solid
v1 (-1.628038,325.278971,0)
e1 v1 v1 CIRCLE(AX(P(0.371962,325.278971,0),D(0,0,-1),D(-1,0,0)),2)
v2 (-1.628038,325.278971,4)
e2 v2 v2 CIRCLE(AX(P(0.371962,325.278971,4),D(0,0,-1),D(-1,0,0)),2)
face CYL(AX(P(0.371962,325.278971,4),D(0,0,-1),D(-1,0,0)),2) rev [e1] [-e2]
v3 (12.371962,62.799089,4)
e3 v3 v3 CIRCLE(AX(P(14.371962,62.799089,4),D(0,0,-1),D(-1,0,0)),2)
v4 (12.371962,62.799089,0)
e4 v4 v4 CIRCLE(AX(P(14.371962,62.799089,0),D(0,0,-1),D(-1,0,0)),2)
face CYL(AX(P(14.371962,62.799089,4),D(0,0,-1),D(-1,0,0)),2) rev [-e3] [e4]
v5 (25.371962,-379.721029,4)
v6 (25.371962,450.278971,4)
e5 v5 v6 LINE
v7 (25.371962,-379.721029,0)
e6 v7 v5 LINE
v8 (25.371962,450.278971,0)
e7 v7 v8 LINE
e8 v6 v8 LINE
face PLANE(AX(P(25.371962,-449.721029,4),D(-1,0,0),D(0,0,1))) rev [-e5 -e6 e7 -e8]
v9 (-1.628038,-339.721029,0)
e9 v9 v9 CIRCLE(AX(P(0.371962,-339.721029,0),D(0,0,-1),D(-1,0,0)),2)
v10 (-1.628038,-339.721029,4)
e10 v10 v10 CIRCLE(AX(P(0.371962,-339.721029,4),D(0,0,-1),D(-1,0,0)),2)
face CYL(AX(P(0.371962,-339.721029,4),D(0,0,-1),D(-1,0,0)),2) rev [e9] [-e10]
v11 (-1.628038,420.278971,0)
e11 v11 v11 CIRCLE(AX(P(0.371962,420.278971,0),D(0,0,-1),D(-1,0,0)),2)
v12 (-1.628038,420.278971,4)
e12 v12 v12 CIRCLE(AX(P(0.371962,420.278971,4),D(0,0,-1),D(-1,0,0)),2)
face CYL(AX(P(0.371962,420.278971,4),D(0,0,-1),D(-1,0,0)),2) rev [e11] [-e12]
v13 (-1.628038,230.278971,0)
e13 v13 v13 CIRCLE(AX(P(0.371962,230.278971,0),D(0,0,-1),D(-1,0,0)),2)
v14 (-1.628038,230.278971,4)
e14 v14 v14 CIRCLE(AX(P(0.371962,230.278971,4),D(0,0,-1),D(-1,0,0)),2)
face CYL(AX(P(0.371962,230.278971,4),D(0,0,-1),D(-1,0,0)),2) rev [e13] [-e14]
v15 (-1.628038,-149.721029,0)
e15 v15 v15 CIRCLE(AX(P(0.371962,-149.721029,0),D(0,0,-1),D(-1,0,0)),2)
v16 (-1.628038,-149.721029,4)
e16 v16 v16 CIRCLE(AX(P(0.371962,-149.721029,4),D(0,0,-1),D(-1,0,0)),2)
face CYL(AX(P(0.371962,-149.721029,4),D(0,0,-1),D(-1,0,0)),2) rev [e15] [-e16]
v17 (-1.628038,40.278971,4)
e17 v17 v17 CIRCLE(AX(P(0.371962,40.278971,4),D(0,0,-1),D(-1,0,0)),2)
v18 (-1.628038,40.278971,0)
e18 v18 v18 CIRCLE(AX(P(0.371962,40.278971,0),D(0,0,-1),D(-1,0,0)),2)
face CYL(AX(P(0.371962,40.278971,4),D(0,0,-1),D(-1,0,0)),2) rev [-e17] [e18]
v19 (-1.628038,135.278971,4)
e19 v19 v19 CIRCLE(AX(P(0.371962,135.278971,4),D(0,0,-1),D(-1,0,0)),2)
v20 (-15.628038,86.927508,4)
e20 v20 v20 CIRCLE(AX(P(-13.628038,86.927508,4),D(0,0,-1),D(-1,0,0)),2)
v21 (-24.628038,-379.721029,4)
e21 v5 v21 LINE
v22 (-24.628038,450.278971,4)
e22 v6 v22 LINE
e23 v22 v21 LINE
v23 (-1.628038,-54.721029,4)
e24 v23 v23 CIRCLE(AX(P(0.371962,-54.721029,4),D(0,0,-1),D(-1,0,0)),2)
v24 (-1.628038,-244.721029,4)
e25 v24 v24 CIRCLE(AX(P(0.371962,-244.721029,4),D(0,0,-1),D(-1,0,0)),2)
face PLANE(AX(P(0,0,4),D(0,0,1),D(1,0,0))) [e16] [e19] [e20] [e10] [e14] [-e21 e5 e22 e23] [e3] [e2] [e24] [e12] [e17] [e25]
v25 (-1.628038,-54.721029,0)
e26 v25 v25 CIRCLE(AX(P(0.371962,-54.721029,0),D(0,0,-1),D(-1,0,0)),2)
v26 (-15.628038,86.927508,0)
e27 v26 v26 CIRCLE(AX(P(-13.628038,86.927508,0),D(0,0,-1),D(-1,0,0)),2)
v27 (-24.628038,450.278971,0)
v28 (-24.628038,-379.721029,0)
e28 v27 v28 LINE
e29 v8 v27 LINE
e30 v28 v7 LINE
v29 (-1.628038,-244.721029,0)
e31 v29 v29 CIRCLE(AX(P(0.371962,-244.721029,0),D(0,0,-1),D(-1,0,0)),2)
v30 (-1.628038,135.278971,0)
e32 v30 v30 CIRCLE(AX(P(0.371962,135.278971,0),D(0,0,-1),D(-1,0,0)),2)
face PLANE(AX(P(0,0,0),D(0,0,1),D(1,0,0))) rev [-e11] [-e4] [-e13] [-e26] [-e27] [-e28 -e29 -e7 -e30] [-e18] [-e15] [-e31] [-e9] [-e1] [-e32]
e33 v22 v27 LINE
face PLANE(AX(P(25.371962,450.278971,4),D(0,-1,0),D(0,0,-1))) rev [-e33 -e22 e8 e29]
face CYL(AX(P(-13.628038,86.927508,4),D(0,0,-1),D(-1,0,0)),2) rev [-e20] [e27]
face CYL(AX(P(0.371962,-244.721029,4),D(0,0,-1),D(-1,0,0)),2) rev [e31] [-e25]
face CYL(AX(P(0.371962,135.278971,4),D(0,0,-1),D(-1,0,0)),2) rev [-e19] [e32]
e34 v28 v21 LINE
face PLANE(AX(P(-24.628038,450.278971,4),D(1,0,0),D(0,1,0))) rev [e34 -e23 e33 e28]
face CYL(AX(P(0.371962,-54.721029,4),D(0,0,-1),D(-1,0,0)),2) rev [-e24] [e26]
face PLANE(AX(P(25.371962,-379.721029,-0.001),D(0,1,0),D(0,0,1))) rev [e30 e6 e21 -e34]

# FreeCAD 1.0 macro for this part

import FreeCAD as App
import Part
import Sketcher

V = App.Vector


def add_polygon(sketch, points):
    """Adds a closed chain of lines whose ends are joined by coincident constraints."""
    first, n = sketch.GeometryCount, len(points)
    for a, b in zip(points, points[1:] + points[:1]):
        sketch.addGeometry(Part.LineSegment(App.Vector(*a, 0), App.Vector(*b, 0)), False)
    for i in range(n):
        sketch.addConstraint(Sketcher.Constraint("Coincident", first + i, 2, first + (i + 1) % n, 1))

doc = App.newDocument("Part")
body = doc.addObject("PartDesign::Body", "Body")

sketch1 = body.newObject("Sketcher::SketchObject", "Sketch")
sketch1.AttachmentSupport = (doc.getObject("XY_Plane"), [""])
sketch1.MapMode = "FlatFace"
add_polygon(sketch1, [(-25, 450), (-25, -450), (25, -450), (25, 450)])
sketch1.addConstraint(Sketcher.Constraint("Vertical", 0))
sketch1.addConstraint(Sketcher.Constraint("Horizontal", 1))
sketch1.addConstraint(Sketcher.Constraint("Vertical", 2))
sketch1.addConstraint(Sketcher.Constraint("Horizontal", 3))
sketch1.addConstraint(Sketcher.Constraint("DistanceX", 1, 1, 1, 2, 50.0))
sketch1.addConstraint(Sketcher.Constraint("DistanceY", 0, 2, 0, 1, 900.0))
sketch1.addConstraint(Sketcher.Constraint("DistanceX", 0, 2, -1, 1, 24.628038))
sketch1.addConstraint(Sketcher.Constraint("DistanceY", 0, 2, -1, 1, 449.721029))
pad1 = body.newObject("PartDesign::Pad", "Pad")
pad1.Profile = sketch1
pad1.Length = 4

sketch2 = body.newObject("Sketcher::SketchObject", "Sketch001")
sketch2.AttachmentSupport = (doc.getObject("XY_Plane"), [""])
sketch2.MapMode = "FlatFace"
sketch2.AttachmentOffset = App.Placement(V(0, 0, 4), App.Rotation())
add_polygon(sketch2, [(-25, -380), (-25, -450), (25, -450), (25, -380)])
sketch2.addConstraint(Sketcher.Constraint("Vertical", 0))
sketch2.addConstraint(Sketcher.Constraint("Horizontal", 1))
sketch2.addConstraint(Sketcher.Constraint("Vertical", 2))
sketch2.addConstraint(Sketcher.Constraint("Horizontal", 3))
sketch2.addConstraint(Sketcher.Constraint("DistanceX", 1, 1, 1, 2, 50.0))
sketch2.addConstraint(Sketcher.Constraint("DistanceY", 0, 2, 0, 1, 70.0))
sketch2.addConstraint(Sketcher.Constraint("DistanceX", 0, 2, -1, 1, 24.628038))
sketch2.addConstraint(Sketcher.Constraint("DistanceY", 0, 2, -1, 1, 449.721029))
pocket1 = body.newObject("PartDesign::Pocket", "Pocket")
pocket1.Profile = sketch2
pocket1.Type = "UpToFirst"

sketch3 = body.newObject("Sketcher::SketchObject", "Sketch002")
sketch3.AttachmentSupport = (doc.getObject("XY_Plane"), [""])
sketch3.MapMode = "FlatFace"
sketch3.addGeometry(Part.Circle(V(-13.6, 86.9, 0), V(0, 0, 1), 2), False)
sketch3.addGeometry(Part.Circle(V(-12.1, 485.3, 0), V(0, 0, 1), 2), False)
sketch3.addGeometry(Part.Circle(V(0.4, 500.3, 0), V(0, 0, 1), 2), False)
sketch3.addGeometry(Part.Circle(V(0.4, 470.3, 0), V(0, 0, 1), 2), False)
sketch3.addGeometry(Part.Circle(V(0.4, -244.7, 0), V(0, 0, 1), 2), False)
sketch3.addGeometry(Part.Circle(V(0.4, -149.7, 0), V(0, 0, 1), 2), False)
sketch3.addGeometry(Part.Circle(V(0.4, -54.7, 0), V(0, 0, 1), 2), False)
sketch3.addGeometry(Part.Circle(V(0.4, 40.3, 0), V(0, 0, 1), 2), False)
sketch3.addGeometry(Part.Circle(V(0.4, 135.3, 0), V(0, 0, 1), 2), False)
sketch3.addGeometry(Part.Circle(V(0.4, 230.3, 0), V(0, 0, 1), 2), False)
sketch3.addGeometry(Part.Circle(V(0.4, 325.3, 0), V(0, 0, 1), 2), False)
sketch3.addGeometry(Part.Circle(V(0.4, 420.3, 0), V(0, 0, 1), 2), False)
sketch3.addGeometry(Part.Circle(V(0.4, -339.7, 0), V(0, 0, 1), 2), False)
sketch3.addGeometry(Part.Circle(V(14.4, 62.8, 0), V(0, 0, 1), 2), False)
sketch3.addConstraint(Sketcher.Constraint("Equal", 0, 1))
sketch3.addConstraint(Sketcher.Constraint("Equal", 1, 2))
sketch3.addConstraint(Sketcher.Constraint("Equal", 2, 3))
sketch3.addConstraint(Sketcher.Constraint("Equal", 3, 4))
sketch3.addConstraint(Sketcher.Constraint("Equal", 4, 5))
sketch3.addConstraint(Sketcher.Constraint("Equal", 5, 6))
sketch3.addConstraint(Sketcher.Constraint("Equal", 6, 7))
sketch3.addConstraint(Sketcher.Constraint("Equal", 7, 8))
sketch3.addConstraint(Sketcher.Constraint("Equal", 8, 9))
sketch3.addConstraint(Sketcher.Constraint("Equal", 9, 10))
sketch3.addConstraint(Sketcher.Constraint("Equal", 10, 11))
sketch3.addConstraint(Sketcher.Constraint("Equal", 11, 12))
sketch3.addConstraint(Sketcher.Constraint("Equal", 12, 13))
sketch3.addConstraint(Sketcher.Constraint("Vertical", 2, 3, 3, 3))
sketch3.addConstraint(Sketcher.Constraint("Vertical", 3, 3, 4, 3))
sketch3.addConstraint(Sketcher.Constraint("Vertical", 4, 3, 5, 3))
sketch3.addConstraint(Sketcher.Constraint("Vertical", 5, 3, 6, 3))
sketch3.addConstraint(Sketcher.Constraint("Vertical", 6, 3, 7, 3))
sketch3.addConstraint(Sketcher.Constraint("Vertical", 7, 3, 8, 3))
sketch3.addConstraint(Sketcher.Constraint("Vertical", 8, 3, 9, 3))
sketch3.addConstraint(Sketcher.Constraint("Vertical", 9, 3, 10, 3))
sketch3.addConstraint(Sketcher.Constraint("Vertical", 10, 3, 11, 3))
sketch3.addConstraint(Sketcher.Constraint("Vertical", 11, 3, 12, 3))
sketch3.addConstraint(Sketcher.Constraint("Diameter", 0, 4.0))
sketch3.addConstraint(Sketcher.Constraint("DistanceY", 1, 3, 2, 3, 15.0))
sketch3.addConstraint(Sketcher.Constraint("DistanceX", 0, 3, 2, 3, 14.0))
sketch3.addConstraint(Sketcher.Constraint("DistanceY", 3, 3, 1, 3, 15.0))
sketch3.addConstraint(Sketcher.Constraint("DistanceY", 4, 3, 3, 3, 715.0))
sketch3.addConstraint(Sketcher.Constraint("DistanceY", 4, 3, 5, 3, 95.0))
sketch3.addConstraint(Sketcher.Constraint("DistanceY", 5, 3, 6, 3, 95.0))
sketch3.addConstraint(Sketcher.Constraint("DistanceY", 6, 3, 7, 3, 95.0))
sketch3.addConstraint(Sketcher.Constraint("DistanceY", 7, 3, 8, 3, 95.0))
sketch3.addConstraint(Sketcher.Constraint("DistanceY", 8, 3, 9, 3, 95.0))
sketch3.addConstraint(Sketcher.Constraint("DistanceY", 9, 3, 10, 3, 95.0))
sketch3.addConstraint(Sketcher.Constraint("DistanceY", 11, 3, 3, 3, 50.0))
sketch3.addConstraint(Sketcher.Constraint("DistanceY", 12, 3, 4, 3, 95.0))
sketch3.addConstraint(Sketcher.Constraint("DistanceX", 7, 3, 13, 3, 14.0))
sketch3.addConstraint(Sketcher.Constraint("DistanceX", 0, 3, 1, 3, 1.5))
sketch3.addConstraint(Sketcher.Constraint("DistanceX", 0, 3, -1, 1, 13.628038))
sketch3.addConstraint(Sketcher.Constraint("DistanceY", -1, 1, 1, 3, 485.278971))
sketch3.addConstraint(Sketcher.Constraint("DistanceY", -1, 1, 13, 3, 62.799089))
sketch3.addConstraint(Sketcher.Constraint("DistanceY", 13, 3, 0, 3, 24.128419))
pocket2 = body.newObject("PartDesign::Pocket", "Pocket001")
pocket2.Profile = sketch3
pocket2.Type = "ThroughAll"
pocket2.Reversed = True

doc.recompute()
